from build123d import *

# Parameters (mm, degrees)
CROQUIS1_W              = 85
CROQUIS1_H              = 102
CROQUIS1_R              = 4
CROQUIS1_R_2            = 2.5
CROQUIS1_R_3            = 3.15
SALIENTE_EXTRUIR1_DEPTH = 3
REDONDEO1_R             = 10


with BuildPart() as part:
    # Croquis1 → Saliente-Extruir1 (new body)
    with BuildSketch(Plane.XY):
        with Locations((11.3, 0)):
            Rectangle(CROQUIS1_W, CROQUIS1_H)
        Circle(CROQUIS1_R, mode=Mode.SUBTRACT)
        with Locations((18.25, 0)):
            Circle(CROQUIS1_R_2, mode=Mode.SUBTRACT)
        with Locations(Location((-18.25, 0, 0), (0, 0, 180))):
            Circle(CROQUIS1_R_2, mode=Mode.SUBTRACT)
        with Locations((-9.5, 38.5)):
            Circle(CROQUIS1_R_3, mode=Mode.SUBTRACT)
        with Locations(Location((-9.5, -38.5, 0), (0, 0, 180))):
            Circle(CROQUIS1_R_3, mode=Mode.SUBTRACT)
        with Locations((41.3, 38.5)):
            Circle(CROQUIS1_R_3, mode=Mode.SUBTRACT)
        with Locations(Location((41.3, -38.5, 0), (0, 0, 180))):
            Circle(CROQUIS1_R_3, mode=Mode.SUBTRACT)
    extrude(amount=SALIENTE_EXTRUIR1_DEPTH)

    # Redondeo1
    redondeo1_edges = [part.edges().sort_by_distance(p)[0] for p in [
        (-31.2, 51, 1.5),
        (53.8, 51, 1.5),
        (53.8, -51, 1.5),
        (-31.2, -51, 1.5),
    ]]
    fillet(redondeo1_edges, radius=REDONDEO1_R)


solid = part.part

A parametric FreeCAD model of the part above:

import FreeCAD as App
import Part
import Sketcher

V = App.Vector
Q = App.Units.Quantity


def edges_at(feature, points):
    """Names of the edges that pass closest to the given points."""
    edges = feature.Shape.Edges
    near = lambda p: min(range(len(edges)), key=lambda i: edges[i].distToShape(Part.Vertex(*p))[0])
    return sorted({f"Edge{near(p) + 1}" for p in points})


def add_polygon(sketch, points):
    """Adds a closed chain of lines whose ends are joined by coincident constraints."""
    first, n = sketch.GeometryCount, len(points)
    for a, b in zip(points, points[1:] + points[:1]):
        sketch.addGeometry(Part.LineSegment(App.Vector(*a, 0), App.Vector(*b, 0)), False)
    for i in range(n):
        sketch.addConstraint(Sketcher.Constraint("Coincident", first + i, 2, first + (i + 1) % n, 1))

doc = App.newDocument("Part")
body = doc.addObject("PartDesign::Body", "Body")

sketch1 = doc.addObject("Sketcher::SketchObject", "Sketch")
body.addObject(sketch1)
sketch1.AttachmentSupport = (doc.XY_Plane, [""])
sketch1.MapMode = "FlatFace"
add_polygon(sketch1, [(-31.2, 51), (-31.2, -51), (53.8, -51), (53.8, 51)])
sketch1.addGeometry(Part.Circle(V(-9.5, -38.5, 0), V(0, 0, 1), 3.15), False)
sketch1.addGeometry(Part.Circle(V(-18.25, 0, 0), V(0, 0, 1), 2.5), False)
sketch1.addGeometry(Part.Circle(V(0, 0, 0), V(0, 0, 1), 4), False)
sketch1.addGeometry(Part.Circle(V(41.3, -38.5, 0), V(0, 0, 1), 3.15), False)
sketch1.addGeometry(Part.Circle(V(18.25, 0, 0), V(0, 0, 1), 2.5), False)
sketch1.addGeometry(Part.Circle(V(-9.5, 38.5, 0), V(0, 0, 1), 3.15), False)
sketch1.addGeometry(Part.Circle(V(41.3, 38.5, 0), V(0, 0, 1), 3.15), False)
sketch1.addConstraint([
    Sketcher.Constraint("Vertical", 0),
    Sketcher.Constraint("Horizontal", 1),
    Sketcher.Constraint("Vertical", 2),
    Sketcher.Constraint("Horizontal", 3),
    Sketcher.Constraint("Coincident", 6, 3, -1, 1),
    Sketcher.Constraint("Equal", 4, 7),
    Sketcher.Constraint("Equal", 5, 8),
    Sketcher.Constraint("Equal", 7, 9),
    Sketcher.Constraint("Equal", 9, 10),
    Sketcher.Constraint("Symmetric", 5, 3, 8, 3, -1, 1),
    Sketcher.Constraint("Symmetric", 4, 3, 9, 3, -1),
    Sketcher.Constraint("Symmetric", 7, 3, 10, 3, -1),
    Sketcher.Constraint("PointOnObject", 5, 3, -1),
    Sketcher.Constraint("Horizontal", 4, 3, 7, 3),
    Sketcher.Constraint("Diameter", 5, Q("5 mm")),
    Sketcher.Constraint("Diameter", 6, Q("8 mm")),
    Sketcher.Constraint("Diameter", 4, Q("6.3 mm")),
    Sketcher.Constraint("DistanceX", 1, 1, 1, 2, Q("85 mm")),
    Sketcher.Constraint("DistanceY", 0, 2, 0, 1, Q("102 mm")),
    Sketcher.Constraint("DistanceY", 0, 2, -1, 1, Q("51 mm")),
    Sketcher.Constraint("DistanceY", 4, 3, 9, 3, Q("77 mm")),
    Sketcher.Constraint("DistanceX", 4, 3, -1, 1, Q("9.5 mm")),
    Sketcher.Constraint("DistanceX", -1, 1, 7, 3, Q("41.3 mm")),
    Sketcher.Constraint("DistanceX", 0, 2, -1, 1, Q("31.2 mm")),
    Sketcher.Constraint("DistanceX", 5, 3, 8, 3, Q("36.5 mm")),
])
pad1 = doc.addObject("PartDesign::Pad", "Pad")
body.addObject(pad1)
pad1.Profile = sketch1
pad1.Length = 3
doc.recompute()

fillet = doc.addObject("PartDesign::Fillet", "Fillet")
body.addObject(fillet)
fillet.Base = (pad1, edges_at(pad1, [
    (-31.2, 51, 1.5),
    (53.8, 51, 1.5),
    (53.8, -51, 1.5),
    (-31.2, -51, 1.5),
]))
fillet.Radius = 10

doc.recompute()
